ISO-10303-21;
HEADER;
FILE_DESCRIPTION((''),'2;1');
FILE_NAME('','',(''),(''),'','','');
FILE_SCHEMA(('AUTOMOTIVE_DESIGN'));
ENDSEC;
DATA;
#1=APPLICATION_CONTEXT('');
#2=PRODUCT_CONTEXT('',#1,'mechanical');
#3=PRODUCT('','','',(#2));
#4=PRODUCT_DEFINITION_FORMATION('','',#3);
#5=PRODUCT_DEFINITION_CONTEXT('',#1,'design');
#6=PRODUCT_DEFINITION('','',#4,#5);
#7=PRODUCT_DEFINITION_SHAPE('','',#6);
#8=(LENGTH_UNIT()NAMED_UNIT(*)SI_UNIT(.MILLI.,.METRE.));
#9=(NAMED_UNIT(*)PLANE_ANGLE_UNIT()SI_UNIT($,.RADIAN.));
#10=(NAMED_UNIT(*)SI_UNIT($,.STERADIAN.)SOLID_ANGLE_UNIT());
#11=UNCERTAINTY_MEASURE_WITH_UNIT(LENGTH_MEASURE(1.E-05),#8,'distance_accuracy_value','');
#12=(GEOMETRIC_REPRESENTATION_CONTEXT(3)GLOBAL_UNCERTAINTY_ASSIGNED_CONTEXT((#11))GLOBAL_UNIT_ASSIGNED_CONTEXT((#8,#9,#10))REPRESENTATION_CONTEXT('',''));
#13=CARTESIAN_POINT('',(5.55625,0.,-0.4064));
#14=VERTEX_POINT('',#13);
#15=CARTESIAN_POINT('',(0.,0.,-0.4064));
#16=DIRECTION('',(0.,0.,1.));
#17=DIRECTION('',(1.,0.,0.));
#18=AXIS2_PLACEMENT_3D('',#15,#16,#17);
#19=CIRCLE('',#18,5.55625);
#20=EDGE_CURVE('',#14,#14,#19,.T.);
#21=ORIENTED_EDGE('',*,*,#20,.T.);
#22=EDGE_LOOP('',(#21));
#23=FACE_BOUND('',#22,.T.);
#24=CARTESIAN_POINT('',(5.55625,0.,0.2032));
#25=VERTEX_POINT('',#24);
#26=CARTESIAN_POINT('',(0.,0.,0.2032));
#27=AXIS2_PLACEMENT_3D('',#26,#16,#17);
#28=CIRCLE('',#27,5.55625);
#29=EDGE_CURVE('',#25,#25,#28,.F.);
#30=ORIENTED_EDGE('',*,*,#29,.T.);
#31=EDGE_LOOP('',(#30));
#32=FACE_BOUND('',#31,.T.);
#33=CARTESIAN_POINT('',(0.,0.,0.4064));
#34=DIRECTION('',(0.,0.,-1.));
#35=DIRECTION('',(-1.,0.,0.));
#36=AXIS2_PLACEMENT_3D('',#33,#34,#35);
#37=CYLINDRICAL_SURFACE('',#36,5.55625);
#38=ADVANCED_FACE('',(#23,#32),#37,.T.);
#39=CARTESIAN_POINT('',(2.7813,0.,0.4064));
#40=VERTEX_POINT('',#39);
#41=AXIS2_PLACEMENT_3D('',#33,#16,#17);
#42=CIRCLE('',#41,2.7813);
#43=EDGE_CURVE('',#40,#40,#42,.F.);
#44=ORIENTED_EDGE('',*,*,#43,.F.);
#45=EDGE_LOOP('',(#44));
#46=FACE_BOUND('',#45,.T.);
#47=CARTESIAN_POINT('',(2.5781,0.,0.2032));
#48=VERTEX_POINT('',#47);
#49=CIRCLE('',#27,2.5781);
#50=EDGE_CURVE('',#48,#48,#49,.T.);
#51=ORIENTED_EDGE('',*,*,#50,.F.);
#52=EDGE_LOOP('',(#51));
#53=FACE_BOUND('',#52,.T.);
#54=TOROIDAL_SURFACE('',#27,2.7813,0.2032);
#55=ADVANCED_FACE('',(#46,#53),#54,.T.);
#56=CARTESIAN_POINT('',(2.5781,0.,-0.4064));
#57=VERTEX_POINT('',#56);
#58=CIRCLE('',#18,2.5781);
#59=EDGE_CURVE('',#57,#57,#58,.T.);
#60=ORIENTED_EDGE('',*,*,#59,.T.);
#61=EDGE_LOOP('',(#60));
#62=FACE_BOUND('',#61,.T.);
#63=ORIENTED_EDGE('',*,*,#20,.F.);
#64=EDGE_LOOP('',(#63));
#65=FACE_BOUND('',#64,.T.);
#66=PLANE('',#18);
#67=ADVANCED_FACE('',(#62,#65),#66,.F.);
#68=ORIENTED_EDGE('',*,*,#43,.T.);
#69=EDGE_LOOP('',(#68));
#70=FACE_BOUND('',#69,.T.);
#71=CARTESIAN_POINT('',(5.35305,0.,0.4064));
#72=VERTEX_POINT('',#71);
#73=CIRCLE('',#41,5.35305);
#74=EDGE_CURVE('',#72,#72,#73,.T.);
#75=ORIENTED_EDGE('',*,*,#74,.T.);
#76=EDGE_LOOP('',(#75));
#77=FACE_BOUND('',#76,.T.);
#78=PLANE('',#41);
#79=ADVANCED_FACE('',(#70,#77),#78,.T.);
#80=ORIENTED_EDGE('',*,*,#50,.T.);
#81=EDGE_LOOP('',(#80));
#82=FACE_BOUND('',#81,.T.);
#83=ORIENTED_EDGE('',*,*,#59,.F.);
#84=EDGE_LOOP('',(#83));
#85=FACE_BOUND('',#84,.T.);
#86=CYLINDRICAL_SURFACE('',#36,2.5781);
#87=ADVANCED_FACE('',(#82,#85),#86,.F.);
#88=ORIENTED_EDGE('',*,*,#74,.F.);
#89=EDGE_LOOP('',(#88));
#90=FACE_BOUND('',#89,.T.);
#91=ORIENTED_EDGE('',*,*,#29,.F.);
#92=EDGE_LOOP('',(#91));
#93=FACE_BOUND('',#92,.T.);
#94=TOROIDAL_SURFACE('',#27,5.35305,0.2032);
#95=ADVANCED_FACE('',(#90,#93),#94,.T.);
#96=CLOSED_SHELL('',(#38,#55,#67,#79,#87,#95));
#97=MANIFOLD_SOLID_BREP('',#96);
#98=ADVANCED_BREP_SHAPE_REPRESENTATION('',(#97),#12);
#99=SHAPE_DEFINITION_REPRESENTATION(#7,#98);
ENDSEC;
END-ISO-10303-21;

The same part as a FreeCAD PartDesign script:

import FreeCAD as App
import Part
import Sketcher
from FreeCAD import Vector
Q = App.Units.Quantity


def edges_at(feature, points):
    """Names of the edges that pass closest to the given points."""
    edges = feature.Shape.Edges
    near = lambda p: min(range(len(edges)), key=lambda i: edges[i].distToShape(Part.Vertex(*p))[0])
    return sorted({f"Edge{near(p) + 1}" for p in points})

doc = App.newDocument("Part")
body = doc.addObject("PartDesign::Body", "Body")

# Sketch on XY plane
sketch1 = body.newObject("Sketcher::SketchObject", "Sketch")
sketch1.AttachmentSupport = (doc.getObject("XY_Plane"), [""])
sketch1.MapMode = "FlatFace"
sketch1.addGeometry([
    Part.Circle(Vector(0, 0, 0), Vector(0, 0, 1), 5.6),
    Part.Circle(Vector(0, 0, 0), Vector(0, 0, 1), 2.6),
], False)
sketch1.addConstraint([
    Sketcher.Constraint("Coincident", 0, 3, -1, 1),
    Sketcher.Constraint("Coincident", 1, 3, -1, 1),
    Sketcher.Constraint("Diameter", 0, Q("0.4375 in")),
    Sketcher.Constraint("Diameter", 1, Q("0.203 in")),
])
pad1 = body.newObject("PartDesign::Pad", "Pad")
pad1.Profile = sketch1
pad1.Type = "TwoLengths"
pad1.Length = Q("0.016 in")
pad1.Length2 = Q("0.016 in")
doc.recompute()

fillet = body.newObject("PartDesign::Fillet", "Fillet")
fillet.Base = (pad1, edges_at(pad1, [(-5.556, 0, 0.406), (-2.578, 0, 0.406)]))
fillet.Radius = Q("0.008 in")

doc.recompute()
